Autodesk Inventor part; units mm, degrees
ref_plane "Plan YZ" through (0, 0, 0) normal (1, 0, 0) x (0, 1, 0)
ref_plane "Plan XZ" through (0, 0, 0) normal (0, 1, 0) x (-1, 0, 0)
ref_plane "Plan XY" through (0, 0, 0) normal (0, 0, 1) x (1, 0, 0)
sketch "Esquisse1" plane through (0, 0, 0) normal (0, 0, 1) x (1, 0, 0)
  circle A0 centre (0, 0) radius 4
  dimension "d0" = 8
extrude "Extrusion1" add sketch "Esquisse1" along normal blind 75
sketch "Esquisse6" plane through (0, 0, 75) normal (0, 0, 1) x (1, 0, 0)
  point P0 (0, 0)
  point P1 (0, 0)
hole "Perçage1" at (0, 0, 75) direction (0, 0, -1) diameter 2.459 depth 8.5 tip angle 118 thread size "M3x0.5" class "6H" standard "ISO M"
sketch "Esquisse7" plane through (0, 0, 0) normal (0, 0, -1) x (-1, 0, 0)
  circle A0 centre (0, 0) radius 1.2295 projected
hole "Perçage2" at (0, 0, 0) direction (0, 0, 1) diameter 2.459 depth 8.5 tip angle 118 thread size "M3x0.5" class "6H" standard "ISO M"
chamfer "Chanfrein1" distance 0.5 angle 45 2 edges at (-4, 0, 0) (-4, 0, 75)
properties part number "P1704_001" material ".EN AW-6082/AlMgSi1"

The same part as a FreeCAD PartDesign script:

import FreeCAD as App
import Part
import Sketcher


def edges_at(feature, points):
    """Names of the edges that pass closest to the given points."""
    edges = feature.Shape.Edges
    near = lambda p: min(range(len(edges)), key=lambda i: edges[i].distToShape(Part.Vertex(*p))[0])
    return sorted({f"Edge{near(p) + 1}" for p in points})

doc = App.newDocument("Part")
body = doc.addObject("PartDesign::Body", "Body")

sketch1 = body.newObject("Sketcher::SketchObject", "Sketch")
sketch1.AttachmentSupport = (doc.getObject("XY_Plane"), [""])
sketch1.MapMode = "FlatFace"
sketch1.addGeometry(Part.Circle(App.Vector(0, 0, 0), App.Vector(0, 0, 1), 4), False)
sketch1.addConstraint(Sketcher.Constraint("Coincident", 0, 3, -1, 1))
sketch1.addConstraint(Sketcher.Constraint("Diameter", 0, 8.0))
pad1 = body.newObject("PartDesign::Pad", "Pad")
pad1.Profile = sketch1
pad1.Length = 75

sketch2 = body.newObject("Sketcher::SketchObject", "Sketch001")
sketch2.AttachmentSupport = (doc.getObject("XY_Plane"), [""])
sketch2.MapMode = "FlatFace"
sketch2.AttachmentOffset = App.Placement(App.Vector(0, 0, 75), App.Rotation())
sketch2.addGeometry(Part.Circle(App.Vector(0, 0, 0), App.Vector(0, 0, 1), 1.2), False)
sketch2.addConstraint(Sketcher.Constraint("Coincident", 0, 3, -1, 1))
sketch2.addConstraint(Sketcher.Constraint("Diameter", 0, 2.459))
doc.recompute()
hole = body.newObject("PartDesign::Hole", "Hole")
hole.Profile = sketch2
hole.ThreadType = "None"
hole.Diameter = 2.459
hole.DepthType = "Dimension"
hole.Depth = 8.5
hole.DrillPoint = "Angled"
hole.DrillPointAngle = 118

sketch3 = body.newObject("Sketcher::SketchObject", "Sketch002")
sketch3.AttachmentSupport = (doc.getObject("XY_Plane"), [""])
sketch3.MapMode = "FlatFace"
sketch3.addGeometry(Part.Circle(App.Vector(0, 0, 0), App.Vector(0, 0, 1), 1.2), False)
sketch3.addConstraint(Sketcher.Constraint("Coincident", 0, 3, -1, 1))
sketch3.addConstraint(Sketcher.Constraint("Diameter", 0, 2.459))
doc.recompute()
hole2 = body.newObject("PartDesign::Hole", "Hole001")
hole2.Profile = sketch3
hole2.ThreadType = "None"
hole2.Diameter = 2.459
hole2.DepthType = "Dimension"
hole2.Depth = 8.5
hole2.DrillPoint = "Angled"
hole2.DrillPointAngle = 118
hole2.Reversed = True
doc.recompute()

chamfer = body.newObject("PartDesign::Chamfer", "Chamfer")
chamfer.Base = (hole2, edges_at(hole2, [(-4, 0, 0), (-4, 0, 75)]))
chamfer.Size = 0.5

doc.recompute()
